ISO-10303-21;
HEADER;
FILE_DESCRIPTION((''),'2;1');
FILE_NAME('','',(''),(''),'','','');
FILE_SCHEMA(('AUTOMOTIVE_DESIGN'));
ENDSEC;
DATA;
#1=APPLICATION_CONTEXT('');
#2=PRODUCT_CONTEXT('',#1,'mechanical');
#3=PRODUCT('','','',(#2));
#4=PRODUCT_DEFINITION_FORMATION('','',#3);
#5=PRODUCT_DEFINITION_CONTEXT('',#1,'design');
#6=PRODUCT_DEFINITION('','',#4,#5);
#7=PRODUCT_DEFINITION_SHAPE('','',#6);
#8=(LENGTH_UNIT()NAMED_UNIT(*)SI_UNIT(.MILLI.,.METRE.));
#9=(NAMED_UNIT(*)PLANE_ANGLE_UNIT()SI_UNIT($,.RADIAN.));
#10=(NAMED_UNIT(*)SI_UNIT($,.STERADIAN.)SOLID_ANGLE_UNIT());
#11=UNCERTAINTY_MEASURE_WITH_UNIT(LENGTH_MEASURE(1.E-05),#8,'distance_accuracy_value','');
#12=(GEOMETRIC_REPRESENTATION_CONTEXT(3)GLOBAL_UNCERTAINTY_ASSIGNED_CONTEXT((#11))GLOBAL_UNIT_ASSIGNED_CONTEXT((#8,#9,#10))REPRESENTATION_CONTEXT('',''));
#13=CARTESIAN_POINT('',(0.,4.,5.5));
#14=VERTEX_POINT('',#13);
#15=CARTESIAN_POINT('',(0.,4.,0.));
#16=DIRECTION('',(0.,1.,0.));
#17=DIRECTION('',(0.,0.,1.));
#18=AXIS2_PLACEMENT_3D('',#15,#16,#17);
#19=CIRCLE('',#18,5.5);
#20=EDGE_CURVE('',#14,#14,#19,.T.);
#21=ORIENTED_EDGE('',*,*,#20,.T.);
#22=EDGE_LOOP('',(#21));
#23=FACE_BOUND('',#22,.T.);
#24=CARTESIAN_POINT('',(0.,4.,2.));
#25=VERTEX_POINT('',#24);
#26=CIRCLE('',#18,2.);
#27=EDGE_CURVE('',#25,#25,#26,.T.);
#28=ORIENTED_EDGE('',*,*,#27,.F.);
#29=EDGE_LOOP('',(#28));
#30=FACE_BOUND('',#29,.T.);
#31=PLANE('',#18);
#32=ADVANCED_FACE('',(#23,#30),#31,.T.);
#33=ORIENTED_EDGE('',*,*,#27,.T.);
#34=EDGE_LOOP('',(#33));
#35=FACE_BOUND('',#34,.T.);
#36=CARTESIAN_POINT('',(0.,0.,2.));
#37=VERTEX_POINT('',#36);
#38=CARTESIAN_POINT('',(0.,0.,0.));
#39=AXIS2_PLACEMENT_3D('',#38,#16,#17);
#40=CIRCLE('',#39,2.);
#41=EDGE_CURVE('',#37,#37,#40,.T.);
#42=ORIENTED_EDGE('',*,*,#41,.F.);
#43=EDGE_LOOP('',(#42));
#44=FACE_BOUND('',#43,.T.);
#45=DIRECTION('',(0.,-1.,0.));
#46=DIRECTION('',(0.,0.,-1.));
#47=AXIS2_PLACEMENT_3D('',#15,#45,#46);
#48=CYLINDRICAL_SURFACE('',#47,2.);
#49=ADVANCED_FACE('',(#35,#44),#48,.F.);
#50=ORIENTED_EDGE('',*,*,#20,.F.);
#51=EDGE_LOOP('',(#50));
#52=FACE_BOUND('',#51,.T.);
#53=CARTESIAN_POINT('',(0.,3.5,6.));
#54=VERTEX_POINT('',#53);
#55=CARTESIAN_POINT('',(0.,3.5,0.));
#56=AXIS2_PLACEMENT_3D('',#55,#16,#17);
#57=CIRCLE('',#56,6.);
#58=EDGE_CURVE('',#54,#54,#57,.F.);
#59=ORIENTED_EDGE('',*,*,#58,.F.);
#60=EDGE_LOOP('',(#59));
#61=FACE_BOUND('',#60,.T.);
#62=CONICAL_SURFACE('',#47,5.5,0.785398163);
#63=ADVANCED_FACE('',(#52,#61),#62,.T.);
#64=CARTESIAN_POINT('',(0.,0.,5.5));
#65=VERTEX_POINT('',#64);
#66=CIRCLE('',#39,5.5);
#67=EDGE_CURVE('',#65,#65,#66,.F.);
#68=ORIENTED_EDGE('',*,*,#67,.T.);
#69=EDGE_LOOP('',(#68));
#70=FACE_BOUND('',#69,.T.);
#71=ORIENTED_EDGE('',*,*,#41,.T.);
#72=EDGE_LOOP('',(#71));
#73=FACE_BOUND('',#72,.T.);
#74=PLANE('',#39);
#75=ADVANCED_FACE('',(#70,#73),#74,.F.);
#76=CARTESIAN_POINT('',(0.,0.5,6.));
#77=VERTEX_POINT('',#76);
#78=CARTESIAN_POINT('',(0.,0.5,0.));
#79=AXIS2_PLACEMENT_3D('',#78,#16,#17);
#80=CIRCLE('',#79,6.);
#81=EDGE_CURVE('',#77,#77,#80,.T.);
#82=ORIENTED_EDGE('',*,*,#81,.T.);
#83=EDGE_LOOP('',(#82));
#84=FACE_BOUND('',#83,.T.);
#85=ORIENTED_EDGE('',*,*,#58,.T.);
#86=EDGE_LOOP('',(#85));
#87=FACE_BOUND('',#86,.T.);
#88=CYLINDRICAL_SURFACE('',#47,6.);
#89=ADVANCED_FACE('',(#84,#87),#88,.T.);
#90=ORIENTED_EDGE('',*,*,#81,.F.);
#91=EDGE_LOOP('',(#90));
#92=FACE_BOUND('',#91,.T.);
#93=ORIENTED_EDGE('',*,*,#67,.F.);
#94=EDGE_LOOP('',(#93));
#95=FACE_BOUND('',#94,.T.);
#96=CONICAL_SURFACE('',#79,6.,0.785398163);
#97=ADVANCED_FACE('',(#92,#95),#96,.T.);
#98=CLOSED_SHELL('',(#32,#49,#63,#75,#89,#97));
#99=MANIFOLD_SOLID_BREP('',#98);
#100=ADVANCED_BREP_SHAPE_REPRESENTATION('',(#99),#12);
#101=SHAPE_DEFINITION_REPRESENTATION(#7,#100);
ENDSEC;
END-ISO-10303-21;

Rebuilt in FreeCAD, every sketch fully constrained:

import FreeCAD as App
import Part
import Sketcher
from FreeCAD import Vector


def edges_at(feature, points):
    """Names of the edges that pass closest to the given points."""
    edges = feature.Shape.Edges
    near = lambda p: min(range(len(edges)), key=lambda i: edges[i].distToShape(Part.Vertex(*p))[0])
    return sorted({f"Edge{near(p) + 1}" for p in points})

doc = App.newDocument("Part")
params = doc.addObject("Spreadsheet::Sheet", "Params")
for row, (alias, value) in enumerate([
    ("sketch1_diameter", "12 mm"),
    ("sketch1_diameter2", "4 mm"),
    ("pad1_length", "4 mm"),
    ("chamfer_size", "0.5 mm"),
], start=1):
    params.set(f"A{row}", alias)
    params.set(f"B{row}", "=" + value)
    params.setAlias(f"B{row}", alias)

body = doc.addObject("PartDesign::Body", "Body")

# Sketch on XZ plane
sketch1 = doc.addObject("Sketcher::SketchObject", "Sketch")
body.addObject(sketch1)
sketch1.AttachmentSupport = (doc.XZ_Plane, [""])
sketch1.MapMode = "FlatFace"
sketch1.addGeometry([
    Part.Circle(Vector(0, 0, 0), Vector(0, 0, 1), 6),
    Part.Circle(Vector(0, 0, 0), Vector(0, 0, 1), 2),
], False)
sketch1.addConstraint([
    Sketcher.Constraint("Coincident", 0, 3, -1, 1),
    Sketcher.Constraint("Coincident", 1, 3, -1, 1),
    Sketcher.Constraint("Diameter", 0, 12.0),
    Sketcher.Constraint("Diameter", 1, 4.0),
])
sketch1.setExpression("Constraints[2]", "Params.sketch1_diameter")
sketch1.setExpression("Constraints[3]", "Params.sketch1_diameter2")
pad1 = doc.addObject("PartDesign::Pad", "Pad")
body.addObject(pad1)
pad1.Profile = sketch1
pad1.setExpression("Length", "Params.pad1_length")
pad1.Reversed = True
doc.recompute()

chamfer = doc.addObject("PartDesign::Chamfer", "Chamfer")
body.addObject(chamfer)
chamfer.Base = (pad1, edges_at(pad1, [(-6, 0, 0), (-6, 4, 0)]))
chamfer.setExpression("Size", "Params.chamfer_size")

doc.recompute()
